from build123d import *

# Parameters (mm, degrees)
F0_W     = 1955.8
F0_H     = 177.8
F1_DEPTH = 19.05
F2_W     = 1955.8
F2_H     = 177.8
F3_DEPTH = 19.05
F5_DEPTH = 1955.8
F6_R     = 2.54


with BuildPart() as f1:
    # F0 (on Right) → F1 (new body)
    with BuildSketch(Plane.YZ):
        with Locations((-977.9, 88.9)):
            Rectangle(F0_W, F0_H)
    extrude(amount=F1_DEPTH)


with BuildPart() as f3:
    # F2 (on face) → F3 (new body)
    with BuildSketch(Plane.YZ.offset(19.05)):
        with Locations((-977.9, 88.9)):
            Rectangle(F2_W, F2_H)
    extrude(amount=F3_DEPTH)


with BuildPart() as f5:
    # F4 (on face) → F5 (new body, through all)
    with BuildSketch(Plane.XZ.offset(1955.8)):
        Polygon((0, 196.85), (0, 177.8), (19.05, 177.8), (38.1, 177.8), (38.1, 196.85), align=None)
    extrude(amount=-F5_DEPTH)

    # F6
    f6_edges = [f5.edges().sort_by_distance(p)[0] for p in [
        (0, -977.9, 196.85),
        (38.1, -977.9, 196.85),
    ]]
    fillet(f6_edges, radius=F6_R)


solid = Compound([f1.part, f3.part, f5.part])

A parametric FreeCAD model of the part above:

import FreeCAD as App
import Part
import Sketcher
from FreeCAD import Vector
Q = App.Units.Quantity


def edges_at(feature, points):
    """Names of the edges that pass closest to the given points."""
    edges = feature.Shape.Edges
    near = lambda p: min(range(len(edges)), key=lambda i: edges[i].distToShape(Part.Vertex(*p))[0])
    return sorted({f"Edge{near(p) + 1}" for p in points})

doc = App.newDocument("Part")
body = doc.addObject("PartDesign::Body", "Body")

sketch1 = body.newObject("Sketcher::SketchObject", "Sketch")
sketch1.AttachmentSupport = (doc.getObject("YZ_Plane"), [""])
sketch1.MapMode = "FlatFace"
sketch1.addGeometry([
    Part.LineSegment(Vector(-1956, 178, 0), Vector(-1956, 0, 0)),
    Part.LineSegment(Vector(-1956, 0, 0), Vector(0, 0, 0)),
    Part.LineSegment(Vector(0, 0, 0), Vector(0, 178, 0)),
    Part.LineSegment(Vector(0, 178, 0), Vector(-1956, 178, 0)),
], False)
sketch1.addConstraint([
    Sketcher.Constraint("Coincident", 0, 2, 1, 1),
    Sketcher.Constraint("Coincident", 1, 2, 2, 1),
    Sketcher.Constraint("Coincident", 2, 2, 3, 1),
    Sketcher.Constraint("Coincident", 3, 2, 0, 1),
    Sketcher.Constraint("Vertical", 0),
    Sketcher.Constraint("Horizontal", 1),
    Sketcher.Constraint("Vertical", 2),
    Sketcher.Constraint("Horizontal", 3),
    Sketcher.Constraint("Coincident", 1, 2, -1, 1),
    Sketcher.Constraint("DistanceX", 1, 1, 1, 2, Q("77 in")),
    Sketcher.Constraint("DistanceY", 0, 2, 0, 1, Q("7 in")),
])
pad1 = body.newObject("PartDesign::Pad", "Pad")
pad1.Profile = sketch1
pad1.Length = Q("0.75 in")
body2 = doc.addObject("PartDesign::Body", "Body001")

sketch2 = body2.newObject("Sketcher::SketchObject", "Sketch001")
sketch2.AttachmentSupport = (doc.getObject("YZ_Plane001"), [""])
sketch2.MapMode = "FlatFace"
sketch2.AttachmentOffset = App.Placement(Vector(0, 0, 0.75 * 25.4), App.Rotation())
sketch2.addGeometry([
    Part.LineSegment(Vector(-1956, 178, 0), Vector(-1956, 0, 0)),
    Part.LineSegment(Vector(-1956, 0, 0), Vector(0, 0, 0)),
    Part.LineSegment(Vector(0, 0, 0), Vector(0, 178, 0)),
    Part.LineSegment(Vector(0, 178, 0), Vector(-1956, 178, 0)),
], False)
sketch2.addConstraint([
    Sketcher.Constraint("Coincident", 0, 2, 1, 1),
    Sketcher.Constraint("Coincident", 1, 2, 2, 1),
    Sketcher.Constraint("Coincident", 2, 2, 3, 1),
    Sketcher.Constraint("Coincident", 3, 2, 0, 1),
    Sketcher.Constraint("Vertical", 0),
    Sketcher.Constraint("Horizontal", 1),
    Sketcher.Constraint("Vertical", 2),
    Sketcher.Constraint("Horizontal", 3),
    Sketcher.Constraint("Coincident", 1, 2, -1, 1),
    Sketcher.Constraint("DistanceX", 1, 1, 1, 2, Q("77 in")),
    Sketcher.Constraint("DistanceY", 0, 2, 0, 1, Q("7 in")),
])
pad2 = body2.newObject("PartDesign::Pad", "Pad001")
pad2.Profile = sketch2
pad2.Length = Q("0.75 in")
body3 = doc.addObject("PartDesign::Body", "Body002")

sketch3 = body3.newObject("Sketcher::SketchObject", "Sketch002")
sketch3.AttachmentSupport = (doc.getObject("XZ_Plane002"), [""])
sketch3.MapMode = "FlatFace"
sketch3.AttachmentOffset = App.Placement(Vector(0, 0, 77 * 25.4), App.Rotation())
sketch3.addGeometry([
    Part.LineSegment(Vector(0, 197, 0), Vector(0, 178, 0)),
    Part.LineSegment(Vector(0, 178, 0), Vector(38, 178, 0)),
    Part.LineSegment(Vector(38, 178, 0), Vector(38, 197, 0)),
    Part.LineSegment(Vector(38, 197, 0), Vector(0, 197, 0)),
], False)
sketch3.addConstraint([
    Sketcher.Constraint("Coincident", 0, 2, 1, 1),
    Sketcher.Constraint("Coincident", 1, 2, 2, 1),
    Sketcher.Constraint("Coincident", 2, 2, 3, 1),
    Sketcher.Constraint("Coincident", 3, 2, 0, 1),
    Sketcher.Constraint("Vertical", 0),
    Sketcher.Constraint("Horizontal", 1),
    Sketcher.Constraint("Vertical", 2),
    Sketcher.Constraint("Horizontal", 3),
    Sketcher.Constraint("PointOnObject", 0, 2, -2),
    Sketcher.Constraint("DistanceX", 1, 1, 1, 2, Q("1.5 in")),
    Sketcher.Constraint("DistanceY", -1, 1, 0, 2, Q("7 in")),
    Sketcher.Constraint("DistanceY", 0, 2, 0, 1, Q("0.75 in")),
])
pad3 = body3.newObject("PartDesign::Pad", "Pad002")
pad3.Profile = sketch3
pad3.Length = Q("77 in")
pad3.Reversed = True
doc.recompute()

fillet = body3.newObject("PartDesign::Fillet", "Fillet")
fillet.Base = (pad3, edges_at(pad3, [(0, -977.9, 196.85), (38.1, -977.9, 196.85)]))
fillet.Radius = Q("0.1 in")

doc.recompute()
